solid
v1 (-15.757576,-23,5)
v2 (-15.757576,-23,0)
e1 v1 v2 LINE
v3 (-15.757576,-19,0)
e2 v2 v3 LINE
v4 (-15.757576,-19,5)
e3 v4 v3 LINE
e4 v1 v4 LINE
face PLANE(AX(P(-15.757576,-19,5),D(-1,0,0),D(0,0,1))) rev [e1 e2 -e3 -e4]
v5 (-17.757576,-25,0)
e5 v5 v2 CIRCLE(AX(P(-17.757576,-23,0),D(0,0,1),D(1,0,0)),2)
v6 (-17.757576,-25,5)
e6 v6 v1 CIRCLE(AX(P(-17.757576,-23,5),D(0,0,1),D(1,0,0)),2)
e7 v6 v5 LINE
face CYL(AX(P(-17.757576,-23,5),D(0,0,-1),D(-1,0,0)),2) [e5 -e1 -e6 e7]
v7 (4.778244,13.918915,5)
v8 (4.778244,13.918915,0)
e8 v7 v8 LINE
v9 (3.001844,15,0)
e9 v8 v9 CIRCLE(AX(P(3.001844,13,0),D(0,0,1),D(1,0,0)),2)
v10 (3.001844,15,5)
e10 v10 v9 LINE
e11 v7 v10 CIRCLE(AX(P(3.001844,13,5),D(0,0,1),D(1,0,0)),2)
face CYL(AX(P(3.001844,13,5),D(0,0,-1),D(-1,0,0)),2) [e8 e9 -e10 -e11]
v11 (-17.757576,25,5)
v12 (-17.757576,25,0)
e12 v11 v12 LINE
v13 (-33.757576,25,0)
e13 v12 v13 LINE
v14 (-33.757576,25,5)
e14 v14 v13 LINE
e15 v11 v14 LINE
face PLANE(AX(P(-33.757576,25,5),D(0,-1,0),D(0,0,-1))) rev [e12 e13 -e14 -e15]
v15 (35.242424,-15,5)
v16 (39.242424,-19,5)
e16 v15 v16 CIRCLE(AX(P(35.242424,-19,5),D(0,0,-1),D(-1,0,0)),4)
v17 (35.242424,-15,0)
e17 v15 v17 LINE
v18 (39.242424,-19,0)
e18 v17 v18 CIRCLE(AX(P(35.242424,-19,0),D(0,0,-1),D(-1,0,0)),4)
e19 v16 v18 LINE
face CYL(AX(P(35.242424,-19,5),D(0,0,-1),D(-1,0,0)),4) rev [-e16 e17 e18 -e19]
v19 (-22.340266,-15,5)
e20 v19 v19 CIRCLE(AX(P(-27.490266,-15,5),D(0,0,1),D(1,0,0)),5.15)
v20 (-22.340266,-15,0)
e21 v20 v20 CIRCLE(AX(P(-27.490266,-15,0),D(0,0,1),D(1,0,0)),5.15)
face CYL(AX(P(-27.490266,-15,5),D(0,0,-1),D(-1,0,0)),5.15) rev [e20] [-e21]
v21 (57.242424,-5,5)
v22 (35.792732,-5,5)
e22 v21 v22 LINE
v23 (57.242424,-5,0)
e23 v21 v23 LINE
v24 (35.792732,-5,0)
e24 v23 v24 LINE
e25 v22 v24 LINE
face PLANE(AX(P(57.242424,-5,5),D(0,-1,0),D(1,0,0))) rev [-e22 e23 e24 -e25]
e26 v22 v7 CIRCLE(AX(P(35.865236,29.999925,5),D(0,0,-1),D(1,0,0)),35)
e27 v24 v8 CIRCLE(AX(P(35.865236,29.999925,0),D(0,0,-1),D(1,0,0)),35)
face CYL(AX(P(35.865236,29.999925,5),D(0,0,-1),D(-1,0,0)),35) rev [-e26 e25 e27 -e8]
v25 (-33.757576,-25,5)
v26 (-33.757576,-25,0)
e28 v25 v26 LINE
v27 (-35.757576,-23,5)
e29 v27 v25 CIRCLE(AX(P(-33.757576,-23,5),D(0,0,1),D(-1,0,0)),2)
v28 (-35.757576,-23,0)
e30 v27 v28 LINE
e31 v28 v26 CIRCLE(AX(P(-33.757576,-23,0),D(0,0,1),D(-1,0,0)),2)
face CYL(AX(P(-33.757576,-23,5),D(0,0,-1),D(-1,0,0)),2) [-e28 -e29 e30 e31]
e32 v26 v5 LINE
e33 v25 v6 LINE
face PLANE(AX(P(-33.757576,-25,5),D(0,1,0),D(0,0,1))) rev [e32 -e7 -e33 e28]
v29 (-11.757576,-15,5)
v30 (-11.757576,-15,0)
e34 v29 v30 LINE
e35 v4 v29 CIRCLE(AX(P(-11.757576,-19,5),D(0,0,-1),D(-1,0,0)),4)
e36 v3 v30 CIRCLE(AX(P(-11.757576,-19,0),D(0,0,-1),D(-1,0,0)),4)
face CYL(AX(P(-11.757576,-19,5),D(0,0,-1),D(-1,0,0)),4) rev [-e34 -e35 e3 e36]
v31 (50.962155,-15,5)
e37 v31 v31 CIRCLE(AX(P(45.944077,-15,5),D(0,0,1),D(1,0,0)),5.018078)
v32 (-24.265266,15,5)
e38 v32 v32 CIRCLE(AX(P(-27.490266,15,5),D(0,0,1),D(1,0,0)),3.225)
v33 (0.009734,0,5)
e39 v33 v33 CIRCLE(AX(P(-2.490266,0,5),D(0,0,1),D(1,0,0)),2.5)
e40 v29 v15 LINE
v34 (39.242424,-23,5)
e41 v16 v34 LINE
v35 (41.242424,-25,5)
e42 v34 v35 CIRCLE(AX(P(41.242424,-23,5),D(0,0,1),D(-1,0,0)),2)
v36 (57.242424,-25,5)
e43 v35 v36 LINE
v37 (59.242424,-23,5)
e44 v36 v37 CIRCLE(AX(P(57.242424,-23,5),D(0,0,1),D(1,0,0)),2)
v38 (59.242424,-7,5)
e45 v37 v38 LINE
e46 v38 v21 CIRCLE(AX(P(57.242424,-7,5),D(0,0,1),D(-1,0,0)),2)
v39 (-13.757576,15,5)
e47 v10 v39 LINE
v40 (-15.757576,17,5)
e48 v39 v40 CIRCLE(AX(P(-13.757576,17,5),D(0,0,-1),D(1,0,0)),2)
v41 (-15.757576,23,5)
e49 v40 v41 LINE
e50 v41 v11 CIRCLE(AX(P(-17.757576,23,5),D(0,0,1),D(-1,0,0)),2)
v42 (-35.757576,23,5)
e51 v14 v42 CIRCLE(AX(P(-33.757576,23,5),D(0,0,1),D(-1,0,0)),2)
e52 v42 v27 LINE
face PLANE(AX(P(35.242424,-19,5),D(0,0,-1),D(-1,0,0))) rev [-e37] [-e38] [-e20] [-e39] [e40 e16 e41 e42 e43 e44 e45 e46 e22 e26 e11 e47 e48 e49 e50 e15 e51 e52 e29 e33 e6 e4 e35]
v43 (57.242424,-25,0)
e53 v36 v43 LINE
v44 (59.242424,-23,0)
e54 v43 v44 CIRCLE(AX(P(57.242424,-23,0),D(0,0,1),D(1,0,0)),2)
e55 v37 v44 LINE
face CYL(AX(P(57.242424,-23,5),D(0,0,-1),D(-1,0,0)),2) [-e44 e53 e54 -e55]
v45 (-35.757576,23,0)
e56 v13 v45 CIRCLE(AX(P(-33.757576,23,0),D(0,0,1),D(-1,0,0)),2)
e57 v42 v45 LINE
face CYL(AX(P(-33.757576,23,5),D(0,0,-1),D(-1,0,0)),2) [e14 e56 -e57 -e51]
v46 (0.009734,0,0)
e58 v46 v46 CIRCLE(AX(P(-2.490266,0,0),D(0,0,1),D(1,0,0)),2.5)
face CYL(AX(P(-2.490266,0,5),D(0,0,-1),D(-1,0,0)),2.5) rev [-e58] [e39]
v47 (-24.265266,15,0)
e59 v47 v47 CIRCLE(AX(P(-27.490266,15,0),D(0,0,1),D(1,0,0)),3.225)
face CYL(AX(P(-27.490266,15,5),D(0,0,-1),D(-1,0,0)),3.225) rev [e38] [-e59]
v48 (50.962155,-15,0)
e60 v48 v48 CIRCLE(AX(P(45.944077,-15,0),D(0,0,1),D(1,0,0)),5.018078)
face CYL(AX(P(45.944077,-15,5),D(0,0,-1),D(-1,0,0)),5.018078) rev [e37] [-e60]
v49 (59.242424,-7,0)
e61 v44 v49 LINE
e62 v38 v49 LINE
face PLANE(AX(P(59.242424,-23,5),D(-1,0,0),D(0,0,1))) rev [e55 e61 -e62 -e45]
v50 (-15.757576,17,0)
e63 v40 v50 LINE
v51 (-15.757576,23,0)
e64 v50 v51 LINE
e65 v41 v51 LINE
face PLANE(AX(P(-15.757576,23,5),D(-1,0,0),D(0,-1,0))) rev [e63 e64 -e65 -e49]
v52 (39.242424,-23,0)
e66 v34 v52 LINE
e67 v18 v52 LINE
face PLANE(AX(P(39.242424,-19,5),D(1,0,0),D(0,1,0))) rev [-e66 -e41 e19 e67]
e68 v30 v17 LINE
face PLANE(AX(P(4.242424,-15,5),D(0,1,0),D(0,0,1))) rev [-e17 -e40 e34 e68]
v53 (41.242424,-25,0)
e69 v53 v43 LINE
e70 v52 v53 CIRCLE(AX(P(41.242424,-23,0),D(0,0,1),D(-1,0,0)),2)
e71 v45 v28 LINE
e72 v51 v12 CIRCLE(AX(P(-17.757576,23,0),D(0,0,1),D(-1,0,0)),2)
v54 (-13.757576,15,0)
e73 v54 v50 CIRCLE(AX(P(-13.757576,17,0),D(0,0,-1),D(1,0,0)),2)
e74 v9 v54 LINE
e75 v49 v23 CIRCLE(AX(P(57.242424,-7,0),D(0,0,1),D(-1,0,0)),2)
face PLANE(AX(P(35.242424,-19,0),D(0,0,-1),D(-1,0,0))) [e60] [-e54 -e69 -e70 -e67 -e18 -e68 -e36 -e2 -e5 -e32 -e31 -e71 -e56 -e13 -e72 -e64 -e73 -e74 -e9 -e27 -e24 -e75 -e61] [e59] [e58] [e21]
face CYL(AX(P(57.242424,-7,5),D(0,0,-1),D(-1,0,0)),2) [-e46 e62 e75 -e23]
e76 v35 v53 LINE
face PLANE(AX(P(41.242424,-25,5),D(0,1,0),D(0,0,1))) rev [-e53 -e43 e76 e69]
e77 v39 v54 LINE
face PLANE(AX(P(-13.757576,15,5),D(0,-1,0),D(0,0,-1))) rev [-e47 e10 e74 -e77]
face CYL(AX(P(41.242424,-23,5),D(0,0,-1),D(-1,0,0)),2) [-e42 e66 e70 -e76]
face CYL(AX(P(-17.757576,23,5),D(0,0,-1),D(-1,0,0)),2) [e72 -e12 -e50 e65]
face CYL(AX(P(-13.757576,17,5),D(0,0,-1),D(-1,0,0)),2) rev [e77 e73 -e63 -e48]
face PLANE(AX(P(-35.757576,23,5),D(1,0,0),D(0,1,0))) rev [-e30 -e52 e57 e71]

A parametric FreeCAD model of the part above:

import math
import FreeCAD as App
import Part
import Sketcher

V = App.Vector

doc = App.newDocument("Part")
body = doc.addObject("PartDesign::Body", "Body")

# Sketch on XY plane
sketch1 = body.newObject("Sketcher::SketchObject", "Sketch")
sketch1.AttachmentSupport = (doc.getObject("XY_Plane"), [""])
sketch1.MapMode = "FlatFace"
sketch1.addGeometry([
    Part.ArcOfCircle(Part.Circle(V(35.242424, -19, 0), V(0, 0, 1), 4), math.radians(0), math.radians(90)),  # 0
    Part.LineSegment(V(39.242424, -19, 0), V(39.242424, -23, 0)),  # 1
    Part.ArcOfCircle(Part.Circle(V(41.242424, -23, 0), V(0, 0, 1), 2), math.radians(-180), math.radians(-90)),  # 2
    Part.LineSegment(V(41.242424, -25, 0), V(57.242424, -25, 0)),  # 3
    Part.ArcOfCircle(Part.Circle(V(57.242424, -23, 0), V(0, 0, 1), 2), math.radians(-90), math.radians(0)),  # 4
    Part.LineSegment(V(59.242424, -23, 0), V(59.242424, -7, 0)),  # 5
    Part.ArcOfCircle(Part.Circle(V(57.242424, -7, 0), V(0, 0, 1), 2), math.radians(0), math.radians(90)),  # 6
    Part.LineSegment(V(57.242424, -5, 0), V(35.792732, -5, 0)),  # 7
    Part.ArcOfCircle(Part.Circle(V(35.865236, 29.999925, 0), V(0, 0, 1), 35), math.radians(-152.647898), math.radians(-90.118691)),  # 8
    Part.ArcOfCircle(Part.Circle(V(3.001844, 13, 0), V(0, 0, 1), 2), math.radians(27.352102), math.radians(90)),  # 9
    Part.LineSegment(V(3.001844, 15, 0), V(-13.757576, 15, 0)),  # 10
    Part.ArcOfCircle(Part.Circle(V(-13.757576, 17, 0), V(0, 0, 1), 2), math.radians(-180), math.radians(-90)),  # 11
    Part.LineSegment(V(-15.757576, 17, 0), V(-15.757576, 23, 0)),  # 12
    Part.ArcOfCircle(Part.Circle(V(-17.757576, 23, 0), V(0, 0, 1), 2), math.radians(0), math.radians(90)),  # 13
    Part.LineSegment(V(-17.757576, 25, 0), V(-33.757576, 25, 0)),  # 14
    Part.ArcOfCircle(Part.Circle(V(-33.757576, 23, 0), V(0, 0, 1), 2), math.radians(90), math.radians(180)),  # 15
    Part.LineSegment(V(-35.757576, 23, 0), V(-35.757576, -23, 0)),  # 16
    Part.ArcOfCircle(Part.Circle(V(-33.757576, -23, 0), V(0, 0, 1), 2), math.radians(-180), math.radians(-90)),  # 17
    Part.LineSegment(V(-33.757576, -25, 0), V(-17.757576, -25, 0)),  # 18
    Part.ArcOfCircle(Part.Circle(V(-17.757576, -23, 0), V(0, 0, 1), 2), math.radians(-90), math.radians(0)),  # 19
    Part.LineSegment(V(-15.757576, -23, 0), V(-15.757576, -19, 0)),  # 20
    Part.ArcOfCircle(Part.Circle(V(-11.757576, -19, 0), V(0, 0, 1), 4), math.radians(90), math.radians(180)),  # 21
    Part.LineSegment(V(-11.757576, -15, 0), V(35.242424, -15, 0)),  # 22
    Part.Circle(V(-27.490266, -15, 0), V(0, 0, 1), 5.15),  # 23
    Part.Circle(V(45.944077, -15, 0), V(0, 0, 1), 5.018078),  # 24
    Part.Circle(V(-2.490266, 0, 0), V(0, 0, 1), 2.5),  # 25
    Part.Circle(V(-27.490266, 15, 0), V(0, 0, 1), 3.225),  # 26
], False)
sketch1.addConstraint([
    Sketcher.Constraint("Tangent", 0, 1, 1, 1),
    Sketcher.Constraint("Tangent", 1, 2, 2, 1),
    Sketcher.Constraint("Tangent", 2, 2, 3, 1),
    Sketcher.Constraint("Tangent", 3, 2, 4, 1),
    Sketcher.Constraint("Tangent", 4, 2, 5, 1),
    Sketcher.Constraint("Tangent", 5, 2, 6, 1),
    Sketcher.Constraint("Tangent", 6, 2, 7, 1),
    Sketcher.Constraint("Coincident", 7, 2, 8, 2),
    Sketcher.Constraint("Tangent", 8, 1, 9, 1),
    Sketcher.Constraint("Tangent", 9, 2, 10, 1),
    Sketcher.Constraint("Tangent", 10, 2, 11, 2),
    Sketcher.Constraint("Tangent", 11, 1, 12, 1),
    Sketcher.Constraint("Tangent", 12, 2, 13, 1),
    Sketcher.Constraint("Tangent", 13, 2, 14, 1),
    Sketcher.Constraint("Tangent", 14, 2, 15, 1),
    Sketcher.Constraint("Tangent", 15, 2, 16, 1),
    Sketcher.Constraint("Tangent", 16, 2, 17, 1),
    Sketcher.Constraint("Tangent", 17, 2, 18, 1),
    Sketcher.Constraint("Tangent", 18, 2, 19, 1),
    Sketcher.Constraint("Tangent", 19, 2, 20, 1),
    Sketcher.Constraint("Tangent", 20, 2, 21, 2),
    Sketcher.Constraint("Tangent", 21, 1, 22, 1),
    Sketcher.Constraint("Tangent", 22, 2, 0, 2),
    Sketcher.Constraint("Vertical", 1),
    Sketcher.Constraint("Horizontal", 3),
    Sketcher.Constraint("Vertical", 5),
    Sketcher.Constraint("Horizontal", 7),
    Sketcher.Constraint("Horizontal", 10),
    Sketcher.Constraint("Vertical", 12),
    Sketcher.Constraint("Horizontal", 14),
    Sketcher.Constraint("Vertical", 16),
    Sketcher.Constraint("Horizontal", 18),
    Sketcher.Constraint("Vertical", 20),
    Sketcher.Constraint("Horizontal", 22),
    Sketcher.Constraint("Equal", 2, 4),
    Sketcher.Constraint("Equal", 4, 6),
    Sketcher.Constraint("Equal", 6, 9),
    Sketcher.Constraint("Equal", 9, 11),
    Sketcher.Constraint("Equal", 11, 13),
    Sketcher.Constraint("Equal", 13, 15),
    Sketcher.Constraint("Equal", 15, 17),
    Sketcher.Constraint("Equal", 17, 19),
    Sketcher.Constraint("Equal", 0, 21),
    Sketcher.Constraint("Symmetric", 13, 3, 19, 3, -1),
    Sketcher.Constraint("Symmetric", 23, 3, 26, 3, -1),
    Sketcher.Constraint("PointOnObject", 25, 3, -1),
    Sketcher.Constraint("Horizontal", 4, 3, 17, 3),
    Sketcher.Constraint("Horizontal", 23, 3, 24, 3),
    Sketcher.Constraint("Horizontal", 26, 3, 9, 2),
    Sketcher.Constraint("Horizontal", 24, 3, 21, 1),
    Sketcher.Constraint("Equal", 3, 14),
    Sketcher.Constraint("Equal", 18, 5),
    Sketcher.Constraint("Diameter", 25, 5.0),
    Sketcher.Constraint("Radius", 0, 4.0),
    Sketcher.Constraint("Radius", 2, 2.0),
    Sketcher.Constraint("Radius", 8, 35.0),
    Sketcher.Constraint("Diameter", 23, 10.3),
    Sketcher.Constraint("Diameter", 26, 6.45),
    Sketcher.Constraint("DistanceX", 3, 1, 3, 2, 16.0),
    Sketcher.Constraint("DistanceX", 22, 1, 22, 2, 47.0),
    Sketcher.Constraint("DistanceY", 1, 2, 1, 1, 4.0),
    Sketcher.Constraint("DistanceY", 16, 2, 16, 1, 46.0),
    Sketcher.Constraint("DistanceX", 26, 3, 25, 3, 25.0),
    Sketcher.Constraint("Diameter", 24, 10.036155),
    Sketcher.Constraint("DistanceX", 7, 2, 7, 1, 21.449692),
    Sketcher.Constraint("DistanceX", 10, 2, 10, 1, 16.75942),
    Sketcher.Constraint("DistanceX", 17, 3, 23, 3, 6.267309),
    Sketcher.Constraint("DistanceX", 8, 3, 24, 3, 10.078841),
    Sketcher.Constraint("DistanceX", -1, 1, 0, 3, 35.242424),
])
pad1 = body.newObject("PartDesign::Pad", "Pad")
pad1.Profile = sketch1
pad1.Length = 5

doc.recompute()
